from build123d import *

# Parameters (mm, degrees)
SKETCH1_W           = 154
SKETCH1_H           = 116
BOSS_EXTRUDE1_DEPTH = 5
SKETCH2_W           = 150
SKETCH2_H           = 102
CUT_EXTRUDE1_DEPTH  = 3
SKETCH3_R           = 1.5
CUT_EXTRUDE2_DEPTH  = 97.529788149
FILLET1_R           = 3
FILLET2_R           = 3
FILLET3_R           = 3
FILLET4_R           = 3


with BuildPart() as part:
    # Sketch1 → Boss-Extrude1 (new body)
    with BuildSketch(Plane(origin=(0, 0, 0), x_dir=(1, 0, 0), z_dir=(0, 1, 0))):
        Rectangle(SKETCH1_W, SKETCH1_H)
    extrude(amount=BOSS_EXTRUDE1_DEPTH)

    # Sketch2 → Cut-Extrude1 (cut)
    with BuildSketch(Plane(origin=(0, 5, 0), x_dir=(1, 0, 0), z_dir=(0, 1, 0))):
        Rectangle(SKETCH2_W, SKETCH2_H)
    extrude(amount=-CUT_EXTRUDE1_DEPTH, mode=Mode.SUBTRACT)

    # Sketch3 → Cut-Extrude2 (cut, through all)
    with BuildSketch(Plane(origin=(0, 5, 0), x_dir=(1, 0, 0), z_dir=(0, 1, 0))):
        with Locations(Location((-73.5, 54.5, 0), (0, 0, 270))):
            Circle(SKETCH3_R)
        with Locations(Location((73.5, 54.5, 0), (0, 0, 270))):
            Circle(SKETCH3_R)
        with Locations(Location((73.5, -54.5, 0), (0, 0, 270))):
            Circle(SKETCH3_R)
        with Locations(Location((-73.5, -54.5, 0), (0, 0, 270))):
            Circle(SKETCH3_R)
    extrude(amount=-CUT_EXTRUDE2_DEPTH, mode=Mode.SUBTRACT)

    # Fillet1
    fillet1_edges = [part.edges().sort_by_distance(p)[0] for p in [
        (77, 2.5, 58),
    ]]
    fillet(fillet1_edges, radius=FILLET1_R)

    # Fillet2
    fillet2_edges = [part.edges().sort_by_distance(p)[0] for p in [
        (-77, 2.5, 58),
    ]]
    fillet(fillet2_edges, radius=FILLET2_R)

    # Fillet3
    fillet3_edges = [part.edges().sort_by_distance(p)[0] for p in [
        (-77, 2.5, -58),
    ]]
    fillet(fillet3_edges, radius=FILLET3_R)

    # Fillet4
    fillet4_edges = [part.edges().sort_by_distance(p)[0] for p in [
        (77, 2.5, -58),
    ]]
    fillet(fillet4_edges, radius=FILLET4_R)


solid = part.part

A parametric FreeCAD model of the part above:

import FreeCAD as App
import Part
import Sketcher
Q = App.Units.Quantity


def edges_at(feature, points):
    """Names of the edges that pass closest to the given points."""
    edges = feature.Shape.Edges
    near = lambda p: min(range(len(edges)), key=lambda i: edges[i].distToShape(Part.Vertex(*p))[0])
    return sorted({f"Edge{near(p) + 1}" for p in points})


def add_polygon(sketch, points):
    """Adds a closed chain of lines whose ends are joined by coincident constraints."""
    first, n = sketch.GeometryCount, len(points)
    for a, b in zip(points, points[1:] + points[:1]):
        sketch.addGeometry(Part.LineSegment(App.Vector(*a, 0), App.Vector(*b, 0)), False)
    for i in range(n):
        sketch.addConstraint(Sketcher.Constraint("Coincident", first + i, 2, first + (i + 1) % n, 1))

doc = App.newDocument("Part")
params = doc.addObject("Spreadsheet::Sheet", "Params")
for row, (alias, value) in enumerate([
    ("sketch1_width", "154 mm"),
    ("sketch1_height", "116 mm"),
    ("pad1_length", "5 mm"),
    ("sketch2_width", "150 mm"),
    ("sketch2_height", "102 mm"),
    ("pocket1_length", "3 mm"),
    ("sketch3_diameter", "3 mm"),
    ("fillet_radius", "3 mm"),
    ("fillet2_radius", "3 mm"),
    ("fillet3_radius", "3 mm"),
    ("fillet4_radius", "3 mm"),
], start=1):
    params.set(f"A{row}", alias)
    params.set(f"B{row}", "=" + value)
    params.setAlias(f"B{row}", alias)

body = doc.addObject("PartDesign::Body", "Body")

# Sketch on XZ plane
sketch1 = doc.addObject("Sketcher::SketchObject", "Sketch")
body.addObject(sketch1)
sketch1.AttachmentSupport = (doc.XZ_Plane, [""])
sketch1.MapMode = "FlatFace"
add_polygon(sketch1, [(-77, -58), (-77, 58), (77, 58), (77, -58)])  # lines 0-3
sketch1.addConstraint([
    Sketcher.Constraint("Vertical", 0),
    Sketcher.Constraint("Horizontal", 1),
    Sketcher.Constraint("Vertical", 2),
    Sketcher.Constraint("Horizontal", 3),
    Sketcher.Constraint("Symmetric", 0, 2, 2, 2, -1, 1),
    Sketcher.Constraint("DistanceX", 1, 1, 1, 2, Q("154 mm")),
    Sketcher.Constraint("DistanceY", 0, 1, 0, 2, Q("116 mm")),
])
sketch1.setExpression("Constraints[9]", "Params.sketch1_width")
sketch1.setExpression("Constraints[10]", "Params.sketch1_height")
pad1 = doc.addObject("PartDesign::Pad", "Pad")
body.addObject(pad1)
pad1.Profile = sketch1
pad1.setExpression("Length", "Params.pad1_length")
pad1.Reversed = True

# Sketch on XZ plane
sketch2 = doc.addObject("Sketcher::SketchObject", "Sketch001")
body.addObject(sketch2)
sketch2.AttachmentSupport = (doc.XZ_Plane, [""])
sketch2.MapMode = "FlatFace"
sketch2.AttachmentOffset = App.Placement(App.Vector(0, 0, -5), App.Rotation())
add_polygon(sketch2, [(-75, -51), (-75, 51), (75, 51), (75, -51)])  # lines 0-3
sketch2.addConstraint([
    Sketcher.Constraint("Vertical", 0),
    Sketcher.Constraint("Horizontal", 1),
    Sketcher.Constraint("Vertical", 2),
    Sketcher.Constraint("Horizontal", 3),
    Sketcher.Constraint("Symmetric", 0, 2, 2, 2, -1, 1),
    Sketcher.Constraint("DistanceX", 1, 1, 1, 2, Q("150 mm")),
    Sketcher.Constraint("DistanceY", 0, 1, 0, 2, Q("102 mm")),
])
sketch2.setExpression("Constraints[9]", "Params.sketch2_width")
sketch2.setExpression("Constraints[10]", "Params.sketch2_height")
pocket1 = doc.addObject("PartDesign::Pocket", "Pocket")
body.addObject(pocket1)
pocket1.Profile = sketch2
pocket1.setExpression("Length", "Params.pocket1_length")
pocket1.Reversed = True

# Sketch on XZ plane
sketch3 = doc.addObject("Sketcher::SketchObject", "Sketch002")
body.addObject(sketch3)
sketch3.AttachmentSupport = (doc.XZ_Plane, [""])
sketch3.MapMode = "FlatFace"
sketch3.AttachmentOffset = App.Placement(App.Vector(0, 0, -5), App.Rotation())
sketch3.addGeometry([
    Part.Circle(App.Vector(-73.5, -54.5, 0), App.Vector(0, 0, 1), 1.5),
    Part.Circle(App.Vector(73.5, -54.5, 0), App.Vector(0, 0, 1), 1.5),
    Part.Circle(App.Vector(73.5, 54.5, 0), App.Vector(0, 0, 1), 1.5),
    Part.Circle(App.Vector(-73.5, 54.5, 0), App.Vector(0, 0, 1), 1.5),
], False)
sketch3.addConstraint([
    Sketcher.Constraint("Equal", 0, 1),
    Sketcher.Constraint("Equal", 1, 2),
    Sketcher.Constraint("Equal", 2, 3),
    Sketcher.Constraint("Symmetric", 0, 3, 2, 3, -1, 1),
    Sketcher.Constraint("Symmetric", 1, 3, 3, 3, -1, 1),
    Sketcher.Constraint("Symmetric", 0, 3, 1, 3, -2),
    Sketcher.Constraint("Diameter", 0, Q("3 mm")),
    Sketcher.Constraint("DistanceX", 0, 3, 1, 3, Q("147 mm")),
    Sketcher.Constraint("DistanceY", 1, 3, 2, 3, Q("109 mm")),
])
sketch3.setExpression("Constraints[6]", "Params.sketch3_diameter")
pocket2 = doc.addObject("PartDesign::Pocket", "Pocket001")
body.addObject(pocket2)
pocket2.Profile = sketch3
pocket2.Type = "ThroughAll"
pocket2.Reversed = True
doc.recompute()

fillet = doc.addObject("PartDesign::Fillet", "Fillet")
body.addObject(fillet)
fillet.Base = (pocket2, edges_at(pocket2, [(77, 2.5, 58)]))
fillet.setExpression("Radius", "Params.fillet_radius")
doc.recompute()

fillet2 = doc.addObject("PartDesign::Fillet", "Fillet001")
body.addObject(fillet2)
fillet2.Base = (fillet, edges_at(fillet, [(-77, 2.5, 58)]))
fillet2.setExpression("Radius", "Params.fillet2_radius")
doc.recompute()

fillet3 = doc.addObject("PartDesign::Fillet", "Fillet002")
body.addObject(fillet3)
fillet3.Base = (fillet2, edges_at(fillet2, [(-77, 2.5, -58)]))
fillet3.setExpression("Radius", "Params.fillet3_radius")
doc.recompute()

fillet4 = doc.addObject("PartDesign::Fillet", "Fillet003")
body.addObject(fillet4)
fillet4.Base = (fillet3, edges_at(fillet3, [(77, 2.5, -58)]))
fillet4.setExpression("Radius", "Params.fillet4_radius")

doc.recompute()
